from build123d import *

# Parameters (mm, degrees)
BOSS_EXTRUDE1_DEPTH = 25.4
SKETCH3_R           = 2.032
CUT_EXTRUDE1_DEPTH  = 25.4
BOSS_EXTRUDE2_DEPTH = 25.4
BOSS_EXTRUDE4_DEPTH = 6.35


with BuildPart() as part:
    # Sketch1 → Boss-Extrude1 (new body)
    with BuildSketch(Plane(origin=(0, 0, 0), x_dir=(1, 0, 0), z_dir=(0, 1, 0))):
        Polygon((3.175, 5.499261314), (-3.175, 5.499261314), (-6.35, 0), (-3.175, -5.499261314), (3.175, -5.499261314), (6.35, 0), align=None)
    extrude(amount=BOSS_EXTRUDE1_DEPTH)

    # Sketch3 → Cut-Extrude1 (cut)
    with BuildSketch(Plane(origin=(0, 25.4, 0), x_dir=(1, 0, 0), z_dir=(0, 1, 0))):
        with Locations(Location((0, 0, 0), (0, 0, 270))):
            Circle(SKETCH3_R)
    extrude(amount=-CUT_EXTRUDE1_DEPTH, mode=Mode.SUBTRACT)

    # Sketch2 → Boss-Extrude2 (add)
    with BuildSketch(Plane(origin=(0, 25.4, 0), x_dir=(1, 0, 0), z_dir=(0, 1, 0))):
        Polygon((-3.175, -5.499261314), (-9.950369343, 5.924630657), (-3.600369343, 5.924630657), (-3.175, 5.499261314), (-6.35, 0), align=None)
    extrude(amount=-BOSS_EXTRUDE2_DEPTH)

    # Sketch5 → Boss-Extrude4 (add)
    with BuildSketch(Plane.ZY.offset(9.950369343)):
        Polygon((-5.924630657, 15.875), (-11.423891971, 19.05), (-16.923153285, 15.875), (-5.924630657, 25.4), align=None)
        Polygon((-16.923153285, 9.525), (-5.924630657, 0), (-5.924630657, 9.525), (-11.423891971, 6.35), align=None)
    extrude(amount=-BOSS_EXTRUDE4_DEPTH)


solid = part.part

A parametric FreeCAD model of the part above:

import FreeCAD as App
import Part
import Sketcher
Q = App.Units.Quantity


def add_polygon(sketch, points):
    """Adds a closed chain of lines whose ends are joined by coincident constraints."""
    first, n = sketch.GeometryCount, len(points)
    for a, b in zip(points, points[1:] + points[:1]):
        sketch.addGeometry(Part.LineSegment(App.Vector(*a, 0), App.Vector(*b, 0)), False)
    for i in range(n):
        sketch.addConstraint(Sketcher.Constraint("Coincident", first + i, 2, first + (i + 1) % n, 1))

doc = App.newDocument("Part")
body = doc.addObject("PartDesign::Body", "Body")

# Sketch on XZ plane
sketch1 = body.newObject("Sketcher::SketchObject", "Sketch")
sketch1.AttachmentSupport = (doc.getObject("XZ_Plane"), [""])
sketch1.MapMode = "FlatFace"
add_polygon(sketch1, [(3, -5), (-3, -5), (-6, 0), (-3, 5), (3, 5), (6, 0)])  # lines 0-5
sketch1.addConstraint([
    Sketcher.Constraint("Horizontal", 0),
    Sketcher.Constraint("Horizontal", 3),
    Sketcher.Constraint("Symmetric", 0, 2, 3, 2, -1, 1),
    Sketcher.Constraint("Symmetric", 1, 2, 4, 2, -1, 1),
    Sketcher.Constraint("PointOnObject", 1, 2, -1),
    Sketcher.Constraint("Parallel", 2, 5),
    Sketcher.Constraint("Vertical", 0, 2, 2, 2),
    Sketcher.Constraint("Angle", 1, Q("120 deg")),
    Sketcher.Constraint("DistanceX", 0, 2, 0, 1, Q("0.25 in")),
    Sketcher.Constraint("DistanceX", 1, 2, 4, 2, Q("0.5 in")),
])
pad1 = body.newObject("PartDesign::Pad", "Pad")
pad1.Profile = sketch1
pad1.Length = Q("1 in")
pad1.Reversed = True

# Sketch on XZ plane
sketch2 = body.newObject("Sketcher::SketchObject", "Sketch001")
sketch2.AttachmentSupport = (doc.getObject("XZ_Plane"), [""])
sketch2.MapMode = "FlatFace"
sketch2.AttachmentOffset = App.Placement(App.Vector(0, 0, -1 * 25.4), App.Rotation())
sketch2.addGeometry(Part.Circle(App.Vector(0, 0, 0), App.Vector(0, 0, 1), 2), False)
sketch2.addConstraint([
    Sketcher.Constraint("Coincident", 0, 3, -1, 1),
    Sketcher.Constraint("Diameter", 0, Q("0.16 in")),
])
pocket1 = body.newObject("PartDesign::Pocket", "Pocket")
pocket1.Profile = sketch2
pocket1.Length = Q("1 in")
pocket1.Reversed = True

# Sketch on XZ plane
sketch3 = body.newObject("Sketcher::SketchObject", "Sketch002")
sketch3.AttachmentSupport = (doc.getObject("XZ_Plane"), [""])
sketch3.MapMode = "FlatFace"
sketch3.AttachmentOffset = App.Placement(App.Vector(0, 0, -1 * 25.4), App.Rotation())
add_polygon(sketch3, [(-10, -5.9), (-3.2, 5.5), (-6.3, 0), (-3.2, -5.5), (-3.6, -5.9)])  # lines 0-4
sketch3.addConstraint([
    Sketcher.Constraint("Horizontal", 4),
    Sketcher.Constraint("Symmetric", 0, 2, 2, 2, -1),
    Sketcher.Constraint("PointOnObject", 1, 2, -1),
    Sketcher.Constraint("Angle", 1, Q("-120 deg")),
    Sketcher.Constraint("Angle", 3, Q("-135 deg")),
    Sketcher.Constraint("DistanceX", 4, 2, 4, 1, Q("0.25 in")),
    Sketcher.Constraint("Distance", 1, Q("0.25 in")),
    Sketcher.Constraint("DistanceX", 1, 2, -1, 1, Q("0.25 in")),
    Sketcher.Constraint("DistanceX", 3, 2, -1, 1, Q("3.600369 mm")),
])
pad2 = body.newObject("PartDesign::Pad", "Pad001")
pad2.Profile = sketch3
pad2.Length = Q("1 in")

# Sketch on YZ plane
sketch4 = body.newObject("Sketcher::SketchObject", "Sketch003")
sketch4.AttachmentSupport = (doc.getObject("YZ_Plane"), [""])
sketch4.MapMode = "FlatFace"
sketch4.AttachmentOffset = App.Placement(App.Vector(0, 0, -9.950369), App.Rotation())
add_polygon(sketch4, [(19, -11), (16, -6), (25, -6), (16, -17)])  # lines 0-3
add_polygon(sketch4, [(10, -17), (0, -6), (10, -6), (6, -11)])  # lines 4-7
sketch4.addConstraint([
    Sketcher.Constraint("Horizontal", 1),
    Sketcher.Constraint("Horizontal", 5),
    Sketcher.Constraint("PointOnObject", 4, 2, -2),
    Sketcher.Constraint("Parallel", 3, 6),
    Sketcher.Constraint("Parallel", 0, 7),
    Sketcher.Constraint("Horizontal", 1, 2, 4, 2),
    Sketcher.Constraint("Horizontal", 3, 2, 6, 2),
    Sketcher.Constraint("Horizontal", 2, 2, 7, 2),
    Sketcher.Constraint("Vertical", 0, 2, 2, 2),
    Sketcher.Constraint("Vertical", 5, 2, 7, 2),
    Sketcher.Constraint("Equal", 1, 5),
    Sketcher.Constraint("DistanceX", -1, 1, 1, 2, Q("1 in")),
    Sketcher.Constraint("Angle", 0, Q("120 deg")),
    Sketcher.Constraint("DistanceX", 6, 2, 3, 2, Q("0.5 in")),
    Sketcher.Constraint("Distance", 0, Q("0.25 in")),
    Sketcher.Constraint("DistanceY", 0, 2, -1, 1, Q("5.924631 mm")),
])
pad3 = body.newObject("PartDesign::Pad", "Pad002")
pad3.Profile = sketch4
pad3.Length = Q("0.25 in")

doc.recompute()
